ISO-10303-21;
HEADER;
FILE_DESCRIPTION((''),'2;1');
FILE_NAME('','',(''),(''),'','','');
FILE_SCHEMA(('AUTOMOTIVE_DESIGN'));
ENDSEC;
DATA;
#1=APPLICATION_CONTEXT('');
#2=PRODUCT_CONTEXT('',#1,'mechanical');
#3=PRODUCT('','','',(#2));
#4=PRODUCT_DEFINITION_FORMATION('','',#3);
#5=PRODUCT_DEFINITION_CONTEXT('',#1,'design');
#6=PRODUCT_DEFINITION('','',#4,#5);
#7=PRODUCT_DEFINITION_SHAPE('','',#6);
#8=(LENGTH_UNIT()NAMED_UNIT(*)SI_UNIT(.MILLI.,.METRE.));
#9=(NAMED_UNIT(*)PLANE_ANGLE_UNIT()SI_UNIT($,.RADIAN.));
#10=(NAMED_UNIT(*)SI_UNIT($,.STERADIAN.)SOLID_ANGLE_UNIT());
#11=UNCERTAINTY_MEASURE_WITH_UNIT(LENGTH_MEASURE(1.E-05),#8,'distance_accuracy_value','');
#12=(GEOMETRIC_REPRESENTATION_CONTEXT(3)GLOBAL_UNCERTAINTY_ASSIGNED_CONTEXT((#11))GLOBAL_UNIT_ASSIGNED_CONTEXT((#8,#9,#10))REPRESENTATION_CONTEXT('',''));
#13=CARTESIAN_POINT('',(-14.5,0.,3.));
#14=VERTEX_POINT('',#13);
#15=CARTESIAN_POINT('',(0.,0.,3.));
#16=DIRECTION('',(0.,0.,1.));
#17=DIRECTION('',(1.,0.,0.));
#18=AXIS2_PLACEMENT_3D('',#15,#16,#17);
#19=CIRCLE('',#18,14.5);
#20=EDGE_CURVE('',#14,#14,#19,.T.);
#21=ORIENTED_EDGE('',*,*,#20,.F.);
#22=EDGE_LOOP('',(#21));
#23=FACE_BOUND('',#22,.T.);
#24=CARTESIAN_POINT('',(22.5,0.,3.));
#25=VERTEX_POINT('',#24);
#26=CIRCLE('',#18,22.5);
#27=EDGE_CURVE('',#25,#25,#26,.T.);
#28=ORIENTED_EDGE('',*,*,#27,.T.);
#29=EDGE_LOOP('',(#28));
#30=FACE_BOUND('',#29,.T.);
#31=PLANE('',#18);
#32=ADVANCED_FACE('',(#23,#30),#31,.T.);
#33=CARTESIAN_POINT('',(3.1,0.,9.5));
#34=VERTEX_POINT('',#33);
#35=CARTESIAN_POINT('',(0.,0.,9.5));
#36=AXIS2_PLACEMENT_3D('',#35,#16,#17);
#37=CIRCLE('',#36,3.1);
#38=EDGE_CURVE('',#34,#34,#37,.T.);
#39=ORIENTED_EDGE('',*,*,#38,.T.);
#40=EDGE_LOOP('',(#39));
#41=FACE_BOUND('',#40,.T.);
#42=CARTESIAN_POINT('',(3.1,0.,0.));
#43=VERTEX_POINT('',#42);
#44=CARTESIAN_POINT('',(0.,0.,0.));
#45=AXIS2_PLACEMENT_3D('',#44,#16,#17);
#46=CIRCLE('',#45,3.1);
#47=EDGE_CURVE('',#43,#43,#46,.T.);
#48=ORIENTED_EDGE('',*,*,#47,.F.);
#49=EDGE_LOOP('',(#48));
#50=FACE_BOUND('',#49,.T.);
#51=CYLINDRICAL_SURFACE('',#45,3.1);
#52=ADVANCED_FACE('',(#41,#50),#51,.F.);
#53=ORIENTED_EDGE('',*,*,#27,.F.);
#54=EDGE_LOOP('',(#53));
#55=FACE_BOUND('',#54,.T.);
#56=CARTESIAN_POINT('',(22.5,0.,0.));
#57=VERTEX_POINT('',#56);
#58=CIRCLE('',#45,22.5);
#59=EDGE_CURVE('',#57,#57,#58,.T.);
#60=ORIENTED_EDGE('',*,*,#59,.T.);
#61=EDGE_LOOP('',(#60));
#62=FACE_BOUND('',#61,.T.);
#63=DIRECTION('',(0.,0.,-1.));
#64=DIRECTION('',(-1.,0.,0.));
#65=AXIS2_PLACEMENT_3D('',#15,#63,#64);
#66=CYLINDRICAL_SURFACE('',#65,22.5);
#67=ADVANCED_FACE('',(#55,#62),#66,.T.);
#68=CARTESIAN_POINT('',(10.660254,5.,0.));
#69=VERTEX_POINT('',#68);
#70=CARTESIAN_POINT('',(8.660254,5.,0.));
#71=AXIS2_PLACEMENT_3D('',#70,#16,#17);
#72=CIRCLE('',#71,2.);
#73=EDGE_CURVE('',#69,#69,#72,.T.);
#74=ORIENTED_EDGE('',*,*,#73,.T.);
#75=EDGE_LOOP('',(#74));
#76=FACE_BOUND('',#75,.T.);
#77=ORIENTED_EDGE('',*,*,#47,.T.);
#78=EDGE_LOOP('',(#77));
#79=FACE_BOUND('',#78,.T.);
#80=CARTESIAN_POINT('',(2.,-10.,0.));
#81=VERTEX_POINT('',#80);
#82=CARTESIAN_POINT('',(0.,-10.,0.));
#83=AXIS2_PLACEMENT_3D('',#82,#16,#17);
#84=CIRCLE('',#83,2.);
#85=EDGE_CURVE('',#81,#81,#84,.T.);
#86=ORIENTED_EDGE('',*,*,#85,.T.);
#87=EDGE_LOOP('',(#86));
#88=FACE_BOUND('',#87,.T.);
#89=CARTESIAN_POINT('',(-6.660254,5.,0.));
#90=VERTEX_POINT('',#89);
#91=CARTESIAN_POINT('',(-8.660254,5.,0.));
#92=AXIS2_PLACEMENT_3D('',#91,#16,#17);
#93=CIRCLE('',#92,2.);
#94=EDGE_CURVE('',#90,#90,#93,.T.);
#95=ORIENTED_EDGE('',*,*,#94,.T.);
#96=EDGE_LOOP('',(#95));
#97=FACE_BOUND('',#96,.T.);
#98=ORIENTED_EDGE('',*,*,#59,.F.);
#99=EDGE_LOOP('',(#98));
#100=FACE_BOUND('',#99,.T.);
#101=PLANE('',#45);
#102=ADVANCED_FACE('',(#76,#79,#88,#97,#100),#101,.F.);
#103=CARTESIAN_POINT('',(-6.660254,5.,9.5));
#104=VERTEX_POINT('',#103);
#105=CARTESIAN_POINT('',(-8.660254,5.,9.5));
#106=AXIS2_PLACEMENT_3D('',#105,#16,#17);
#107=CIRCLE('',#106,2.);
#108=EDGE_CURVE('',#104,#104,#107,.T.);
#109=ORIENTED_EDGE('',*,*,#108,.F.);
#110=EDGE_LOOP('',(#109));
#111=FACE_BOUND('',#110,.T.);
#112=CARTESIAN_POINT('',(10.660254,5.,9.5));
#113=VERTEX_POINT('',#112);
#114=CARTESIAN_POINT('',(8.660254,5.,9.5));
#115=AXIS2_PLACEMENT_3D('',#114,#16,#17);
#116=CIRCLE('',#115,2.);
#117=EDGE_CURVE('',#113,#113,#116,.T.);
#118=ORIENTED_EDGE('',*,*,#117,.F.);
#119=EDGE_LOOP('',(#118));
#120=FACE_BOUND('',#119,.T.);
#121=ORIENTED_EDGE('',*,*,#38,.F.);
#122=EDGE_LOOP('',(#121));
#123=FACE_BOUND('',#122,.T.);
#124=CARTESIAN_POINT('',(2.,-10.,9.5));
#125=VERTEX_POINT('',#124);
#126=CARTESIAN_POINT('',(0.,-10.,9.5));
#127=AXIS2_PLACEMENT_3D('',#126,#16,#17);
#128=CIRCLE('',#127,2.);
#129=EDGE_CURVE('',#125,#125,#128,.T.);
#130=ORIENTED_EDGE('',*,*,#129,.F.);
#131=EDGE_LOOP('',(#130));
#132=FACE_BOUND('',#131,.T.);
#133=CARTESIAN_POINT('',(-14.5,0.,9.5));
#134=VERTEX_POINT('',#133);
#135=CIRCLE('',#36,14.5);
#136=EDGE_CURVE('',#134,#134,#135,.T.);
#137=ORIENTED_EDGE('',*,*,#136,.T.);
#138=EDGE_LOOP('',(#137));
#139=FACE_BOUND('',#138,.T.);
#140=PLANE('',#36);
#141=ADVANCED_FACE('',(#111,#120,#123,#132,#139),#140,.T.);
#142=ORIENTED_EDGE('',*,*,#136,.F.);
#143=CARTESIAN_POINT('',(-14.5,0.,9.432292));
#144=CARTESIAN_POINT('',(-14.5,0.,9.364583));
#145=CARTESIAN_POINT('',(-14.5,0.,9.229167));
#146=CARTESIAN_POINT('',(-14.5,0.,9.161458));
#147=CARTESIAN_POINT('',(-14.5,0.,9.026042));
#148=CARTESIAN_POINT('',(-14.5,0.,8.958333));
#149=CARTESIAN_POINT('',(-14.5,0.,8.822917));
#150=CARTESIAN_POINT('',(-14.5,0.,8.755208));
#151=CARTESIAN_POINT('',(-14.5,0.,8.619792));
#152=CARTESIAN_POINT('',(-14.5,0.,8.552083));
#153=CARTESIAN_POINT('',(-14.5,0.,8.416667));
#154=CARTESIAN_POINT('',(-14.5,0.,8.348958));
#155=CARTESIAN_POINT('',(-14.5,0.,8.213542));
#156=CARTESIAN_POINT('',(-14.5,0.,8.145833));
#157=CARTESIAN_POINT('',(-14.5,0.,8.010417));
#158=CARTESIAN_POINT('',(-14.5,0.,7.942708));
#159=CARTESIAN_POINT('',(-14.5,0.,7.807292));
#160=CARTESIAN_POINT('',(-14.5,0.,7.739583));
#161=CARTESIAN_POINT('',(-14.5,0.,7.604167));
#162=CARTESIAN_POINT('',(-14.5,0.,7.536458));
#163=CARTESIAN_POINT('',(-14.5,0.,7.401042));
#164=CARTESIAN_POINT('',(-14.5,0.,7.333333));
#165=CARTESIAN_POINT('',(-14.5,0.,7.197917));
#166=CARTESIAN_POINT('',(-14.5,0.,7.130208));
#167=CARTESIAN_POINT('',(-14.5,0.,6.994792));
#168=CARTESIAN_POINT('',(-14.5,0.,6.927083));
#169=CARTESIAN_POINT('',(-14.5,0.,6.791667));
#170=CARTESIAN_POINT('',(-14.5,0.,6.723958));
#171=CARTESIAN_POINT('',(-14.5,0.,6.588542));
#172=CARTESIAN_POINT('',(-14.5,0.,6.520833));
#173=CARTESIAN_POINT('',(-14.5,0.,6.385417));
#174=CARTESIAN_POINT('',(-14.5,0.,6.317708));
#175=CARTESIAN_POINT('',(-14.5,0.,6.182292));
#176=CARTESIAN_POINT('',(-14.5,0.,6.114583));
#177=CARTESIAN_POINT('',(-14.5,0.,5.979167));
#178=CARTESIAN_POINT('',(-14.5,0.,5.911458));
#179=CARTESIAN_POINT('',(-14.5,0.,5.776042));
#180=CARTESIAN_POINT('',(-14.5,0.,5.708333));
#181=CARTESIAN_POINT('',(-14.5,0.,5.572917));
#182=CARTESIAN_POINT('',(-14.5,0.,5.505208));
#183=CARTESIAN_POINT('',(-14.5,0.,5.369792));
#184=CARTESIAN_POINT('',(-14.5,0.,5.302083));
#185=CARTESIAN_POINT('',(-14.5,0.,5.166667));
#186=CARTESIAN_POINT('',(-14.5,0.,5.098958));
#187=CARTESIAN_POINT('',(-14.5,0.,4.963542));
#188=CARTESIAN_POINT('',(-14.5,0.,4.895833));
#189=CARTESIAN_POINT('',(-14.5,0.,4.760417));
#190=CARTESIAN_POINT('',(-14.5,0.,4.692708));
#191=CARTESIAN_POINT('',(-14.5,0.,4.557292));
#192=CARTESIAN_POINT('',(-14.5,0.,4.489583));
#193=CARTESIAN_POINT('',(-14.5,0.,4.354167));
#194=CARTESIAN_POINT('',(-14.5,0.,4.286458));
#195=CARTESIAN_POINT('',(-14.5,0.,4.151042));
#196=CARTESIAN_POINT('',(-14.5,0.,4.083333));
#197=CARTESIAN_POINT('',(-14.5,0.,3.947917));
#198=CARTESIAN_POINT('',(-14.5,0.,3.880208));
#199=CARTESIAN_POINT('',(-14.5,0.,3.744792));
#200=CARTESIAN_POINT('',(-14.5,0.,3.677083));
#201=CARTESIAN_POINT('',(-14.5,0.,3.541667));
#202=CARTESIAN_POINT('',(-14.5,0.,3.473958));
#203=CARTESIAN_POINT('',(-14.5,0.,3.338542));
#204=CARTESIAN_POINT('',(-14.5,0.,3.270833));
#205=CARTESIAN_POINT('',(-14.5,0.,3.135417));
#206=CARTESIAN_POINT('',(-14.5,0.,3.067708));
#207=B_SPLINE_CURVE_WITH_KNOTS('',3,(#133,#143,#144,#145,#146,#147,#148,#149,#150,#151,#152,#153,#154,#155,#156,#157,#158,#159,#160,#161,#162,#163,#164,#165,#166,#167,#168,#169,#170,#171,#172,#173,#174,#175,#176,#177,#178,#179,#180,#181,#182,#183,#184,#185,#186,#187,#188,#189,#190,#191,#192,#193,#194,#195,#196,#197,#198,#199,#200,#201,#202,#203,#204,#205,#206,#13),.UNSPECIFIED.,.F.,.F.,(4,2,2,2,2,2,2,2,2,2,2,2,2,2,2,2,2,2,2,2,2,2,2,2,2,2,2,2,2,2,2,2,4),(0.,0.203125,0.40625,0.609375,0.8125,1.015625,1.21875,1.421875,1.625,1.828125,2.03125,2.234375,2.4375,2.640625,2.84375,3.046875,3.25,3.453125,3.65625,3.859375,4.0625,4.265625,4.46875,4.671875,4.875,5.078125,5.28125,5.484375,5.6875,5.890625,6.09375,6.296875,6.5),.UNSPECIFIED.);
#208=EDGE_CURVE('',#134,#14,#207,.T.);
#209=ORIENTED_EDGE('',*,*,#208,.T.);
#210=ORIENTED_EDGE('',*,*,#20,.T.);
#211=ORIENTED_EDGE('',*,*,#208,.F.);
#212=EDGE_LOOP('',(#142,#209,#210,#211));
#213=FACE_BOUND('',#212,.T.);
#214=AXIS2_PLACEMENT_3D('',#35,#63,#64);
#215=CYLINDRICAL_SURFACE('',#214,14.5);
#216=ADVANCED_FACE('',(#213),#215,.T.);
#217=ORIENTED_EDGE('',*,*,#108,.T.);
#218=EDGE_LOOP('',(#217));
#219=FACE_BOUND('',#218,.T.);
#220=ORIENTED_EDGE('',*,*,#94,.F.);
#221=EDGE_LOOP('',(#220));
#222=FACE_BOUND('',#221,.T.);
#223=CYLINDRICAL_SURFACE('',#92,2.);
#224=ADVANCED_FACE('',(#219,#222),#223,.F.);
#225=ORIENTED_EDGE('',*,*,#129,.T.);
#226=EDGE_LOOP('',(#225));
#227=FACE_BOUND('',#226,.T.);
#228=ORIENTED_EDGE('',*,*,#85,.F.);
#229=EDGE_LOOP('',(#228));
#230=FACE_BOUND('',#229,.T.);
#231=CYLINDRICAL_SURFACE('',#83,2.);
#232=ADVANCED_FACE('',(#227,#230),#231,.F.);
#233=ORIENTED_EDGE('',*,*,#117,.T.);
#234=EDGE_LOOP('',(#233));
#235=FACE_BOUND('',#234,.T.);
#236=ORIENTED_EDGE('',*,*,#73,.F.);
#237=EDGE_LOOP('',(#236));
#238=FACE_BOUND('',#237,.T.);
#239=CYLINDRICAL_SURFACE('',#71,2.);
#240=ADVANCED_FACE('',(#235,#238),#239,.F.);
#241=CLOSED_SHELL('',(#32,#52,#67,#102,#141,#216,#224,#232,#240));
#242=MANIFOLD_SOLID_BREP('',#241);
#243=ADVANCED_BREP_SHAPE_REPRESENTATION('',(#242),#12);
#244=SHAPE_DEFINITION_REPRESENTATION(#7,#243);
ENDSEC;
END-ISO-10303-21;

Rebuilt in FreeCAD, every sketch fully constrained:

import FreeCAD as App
import Part
import Sketcher

V = App.Vector
Q = App.Units.Quantity

doc = App.newDocument("Part")
params = doc.addObject("Spreadsheet::Sheet", "Params")
for row, (alias, value) in enumerate([
    ("sketch1_diameter", "45 mm"),
    ("pad1_length", "3 mm"),
    ("sketch2_diameter", "29 mm"),
    ("pad2_length", "6.5 mm"),
    ("sketch3_diameter", "4 mm"),
    ("sketch3_diameter2", "6.2 mm"),
], start=1):
    params.set(f"A{row}", alias)
    params.set(f"B{row}", "=" + value)
    params.setAlias(f"B{row}", alias)

body = doc.addObject("PartDesign::Body", "Body")

sketch1 = body.newObject("Sketcher::SketchObject", "Sketch")
sketch1.AttachmentSupport = (doc.getObject("XY_Plane"), [""])
sketch1.MapMode = "FlatFace"
sketch1.addGeometry(Part.Circle(V(0, 0, 0), V(0, 0, 1), 22.5), False)
sketch1.addConstraint([
    Sketcher.Constraint("Coincident", 0, 3, -1, 1),
    Sketcher.Constraint("Diameter", 0, Q("45 mm")),
])
sketch1.setExpression("Constraints[1]", "Params.sketch1_diameter")
pad1 = body.newObject("PartDesign::Pad", "Pad")
pad1.Profile = sketch1
pad1.setExpression("Length", "Params.pad1_length")

sketch2 = body.newObject("Sketcher::SketchObject", "Sketch001")
sketch2.AttachmentSupport = (doc.getObject("XY_Plane"), [""])
sketch2.MapMode = "FlatFace"
sketch2.AttachmentOffset = App.Placement(V(0, 0, 3), App.Rotation())
sketch2.addGeometry(Part.Circle(V(0, 0, 0), V(0, 0, 1), 14.5), False)
sketch2.addConstraint([
    Sketcher.Constraint("Coincident", 0, 3, -1, 1),
    Sketcher.Constraint("Diameter", 0, Q("29 mm")),
])
sketch2.setExpression("Constraints[1]", "Params.sketch2_diameter")
pad2 = body.newObject("PartDesign::Pad", "Pad001")
pad2.Profile = sketch2
pad2.setExpression("Length", "Params.pad2_length")

sketch3 = body.newObject("Sketcher::SketchObject", "Sketch002")
sketch3.AttachmentSupport = (doc.getObject("XY_Plane"), [""])
sketch3.MapMode = "FlatFace"
sketch3.AttachmentOffset = App.Placement(V(0, 0, 9.5), App.Rotation())
sketch3.addGeometry([
    Part.Circle(V(8.660254, 5, 0), V(0, 0, 1), 2),
    Part.Circle(V(-8.660254, 5, 0), V(0, 0, 1), 2),
    Part.Circle(V(0, -10, 0), V(0, 0, 1), 2),
    Part.Circle(V(0, 0, 0), V(0, 0, 1), 3.1),
], False)
sketch3.addConstraint([
    Sketcher.Constraint("Coincident", 3, 3, -1, 1),
    Sketcher.Constraint("Equal", 0, 1),
    Sketcher.Constraint("Equal", 1, 2),
    Sketcher.Constraint("Symmetric", 0, 3, 1, 3, -2),
    Sketcher.Constraint("PointOnObject", 2, 3, -2),
    Sketcher.Constraint("Diameter", 0, Q("4 mm")),
    Sketcher.Constraint("Diameter", 3, Q("6.2 mm")),
    Sketcher.Constraint("DistanceY", -1, 1, 0, 3, Q("5 mm")),
    Sketcher.Constraint("DistanceY", 2, 3, -1, 1, Q("10 mm")),
    Sketcher.Constraint("DistanceX", 1, 3, 0, 3, Q("17.320508 mm")),
])
sketch3.setExpression("Constraints[5]", "Params.sketch3_diameter")
sketch3.setExpression("Constraints[6]", "Params.sketch3_diameter2")
pocket1 = body.newObject("PartDesign::Pocket", "Pocket")
pocket1.Profile = sketch3
pocket1.Type = "ThroughAll"

doc.recompute()
